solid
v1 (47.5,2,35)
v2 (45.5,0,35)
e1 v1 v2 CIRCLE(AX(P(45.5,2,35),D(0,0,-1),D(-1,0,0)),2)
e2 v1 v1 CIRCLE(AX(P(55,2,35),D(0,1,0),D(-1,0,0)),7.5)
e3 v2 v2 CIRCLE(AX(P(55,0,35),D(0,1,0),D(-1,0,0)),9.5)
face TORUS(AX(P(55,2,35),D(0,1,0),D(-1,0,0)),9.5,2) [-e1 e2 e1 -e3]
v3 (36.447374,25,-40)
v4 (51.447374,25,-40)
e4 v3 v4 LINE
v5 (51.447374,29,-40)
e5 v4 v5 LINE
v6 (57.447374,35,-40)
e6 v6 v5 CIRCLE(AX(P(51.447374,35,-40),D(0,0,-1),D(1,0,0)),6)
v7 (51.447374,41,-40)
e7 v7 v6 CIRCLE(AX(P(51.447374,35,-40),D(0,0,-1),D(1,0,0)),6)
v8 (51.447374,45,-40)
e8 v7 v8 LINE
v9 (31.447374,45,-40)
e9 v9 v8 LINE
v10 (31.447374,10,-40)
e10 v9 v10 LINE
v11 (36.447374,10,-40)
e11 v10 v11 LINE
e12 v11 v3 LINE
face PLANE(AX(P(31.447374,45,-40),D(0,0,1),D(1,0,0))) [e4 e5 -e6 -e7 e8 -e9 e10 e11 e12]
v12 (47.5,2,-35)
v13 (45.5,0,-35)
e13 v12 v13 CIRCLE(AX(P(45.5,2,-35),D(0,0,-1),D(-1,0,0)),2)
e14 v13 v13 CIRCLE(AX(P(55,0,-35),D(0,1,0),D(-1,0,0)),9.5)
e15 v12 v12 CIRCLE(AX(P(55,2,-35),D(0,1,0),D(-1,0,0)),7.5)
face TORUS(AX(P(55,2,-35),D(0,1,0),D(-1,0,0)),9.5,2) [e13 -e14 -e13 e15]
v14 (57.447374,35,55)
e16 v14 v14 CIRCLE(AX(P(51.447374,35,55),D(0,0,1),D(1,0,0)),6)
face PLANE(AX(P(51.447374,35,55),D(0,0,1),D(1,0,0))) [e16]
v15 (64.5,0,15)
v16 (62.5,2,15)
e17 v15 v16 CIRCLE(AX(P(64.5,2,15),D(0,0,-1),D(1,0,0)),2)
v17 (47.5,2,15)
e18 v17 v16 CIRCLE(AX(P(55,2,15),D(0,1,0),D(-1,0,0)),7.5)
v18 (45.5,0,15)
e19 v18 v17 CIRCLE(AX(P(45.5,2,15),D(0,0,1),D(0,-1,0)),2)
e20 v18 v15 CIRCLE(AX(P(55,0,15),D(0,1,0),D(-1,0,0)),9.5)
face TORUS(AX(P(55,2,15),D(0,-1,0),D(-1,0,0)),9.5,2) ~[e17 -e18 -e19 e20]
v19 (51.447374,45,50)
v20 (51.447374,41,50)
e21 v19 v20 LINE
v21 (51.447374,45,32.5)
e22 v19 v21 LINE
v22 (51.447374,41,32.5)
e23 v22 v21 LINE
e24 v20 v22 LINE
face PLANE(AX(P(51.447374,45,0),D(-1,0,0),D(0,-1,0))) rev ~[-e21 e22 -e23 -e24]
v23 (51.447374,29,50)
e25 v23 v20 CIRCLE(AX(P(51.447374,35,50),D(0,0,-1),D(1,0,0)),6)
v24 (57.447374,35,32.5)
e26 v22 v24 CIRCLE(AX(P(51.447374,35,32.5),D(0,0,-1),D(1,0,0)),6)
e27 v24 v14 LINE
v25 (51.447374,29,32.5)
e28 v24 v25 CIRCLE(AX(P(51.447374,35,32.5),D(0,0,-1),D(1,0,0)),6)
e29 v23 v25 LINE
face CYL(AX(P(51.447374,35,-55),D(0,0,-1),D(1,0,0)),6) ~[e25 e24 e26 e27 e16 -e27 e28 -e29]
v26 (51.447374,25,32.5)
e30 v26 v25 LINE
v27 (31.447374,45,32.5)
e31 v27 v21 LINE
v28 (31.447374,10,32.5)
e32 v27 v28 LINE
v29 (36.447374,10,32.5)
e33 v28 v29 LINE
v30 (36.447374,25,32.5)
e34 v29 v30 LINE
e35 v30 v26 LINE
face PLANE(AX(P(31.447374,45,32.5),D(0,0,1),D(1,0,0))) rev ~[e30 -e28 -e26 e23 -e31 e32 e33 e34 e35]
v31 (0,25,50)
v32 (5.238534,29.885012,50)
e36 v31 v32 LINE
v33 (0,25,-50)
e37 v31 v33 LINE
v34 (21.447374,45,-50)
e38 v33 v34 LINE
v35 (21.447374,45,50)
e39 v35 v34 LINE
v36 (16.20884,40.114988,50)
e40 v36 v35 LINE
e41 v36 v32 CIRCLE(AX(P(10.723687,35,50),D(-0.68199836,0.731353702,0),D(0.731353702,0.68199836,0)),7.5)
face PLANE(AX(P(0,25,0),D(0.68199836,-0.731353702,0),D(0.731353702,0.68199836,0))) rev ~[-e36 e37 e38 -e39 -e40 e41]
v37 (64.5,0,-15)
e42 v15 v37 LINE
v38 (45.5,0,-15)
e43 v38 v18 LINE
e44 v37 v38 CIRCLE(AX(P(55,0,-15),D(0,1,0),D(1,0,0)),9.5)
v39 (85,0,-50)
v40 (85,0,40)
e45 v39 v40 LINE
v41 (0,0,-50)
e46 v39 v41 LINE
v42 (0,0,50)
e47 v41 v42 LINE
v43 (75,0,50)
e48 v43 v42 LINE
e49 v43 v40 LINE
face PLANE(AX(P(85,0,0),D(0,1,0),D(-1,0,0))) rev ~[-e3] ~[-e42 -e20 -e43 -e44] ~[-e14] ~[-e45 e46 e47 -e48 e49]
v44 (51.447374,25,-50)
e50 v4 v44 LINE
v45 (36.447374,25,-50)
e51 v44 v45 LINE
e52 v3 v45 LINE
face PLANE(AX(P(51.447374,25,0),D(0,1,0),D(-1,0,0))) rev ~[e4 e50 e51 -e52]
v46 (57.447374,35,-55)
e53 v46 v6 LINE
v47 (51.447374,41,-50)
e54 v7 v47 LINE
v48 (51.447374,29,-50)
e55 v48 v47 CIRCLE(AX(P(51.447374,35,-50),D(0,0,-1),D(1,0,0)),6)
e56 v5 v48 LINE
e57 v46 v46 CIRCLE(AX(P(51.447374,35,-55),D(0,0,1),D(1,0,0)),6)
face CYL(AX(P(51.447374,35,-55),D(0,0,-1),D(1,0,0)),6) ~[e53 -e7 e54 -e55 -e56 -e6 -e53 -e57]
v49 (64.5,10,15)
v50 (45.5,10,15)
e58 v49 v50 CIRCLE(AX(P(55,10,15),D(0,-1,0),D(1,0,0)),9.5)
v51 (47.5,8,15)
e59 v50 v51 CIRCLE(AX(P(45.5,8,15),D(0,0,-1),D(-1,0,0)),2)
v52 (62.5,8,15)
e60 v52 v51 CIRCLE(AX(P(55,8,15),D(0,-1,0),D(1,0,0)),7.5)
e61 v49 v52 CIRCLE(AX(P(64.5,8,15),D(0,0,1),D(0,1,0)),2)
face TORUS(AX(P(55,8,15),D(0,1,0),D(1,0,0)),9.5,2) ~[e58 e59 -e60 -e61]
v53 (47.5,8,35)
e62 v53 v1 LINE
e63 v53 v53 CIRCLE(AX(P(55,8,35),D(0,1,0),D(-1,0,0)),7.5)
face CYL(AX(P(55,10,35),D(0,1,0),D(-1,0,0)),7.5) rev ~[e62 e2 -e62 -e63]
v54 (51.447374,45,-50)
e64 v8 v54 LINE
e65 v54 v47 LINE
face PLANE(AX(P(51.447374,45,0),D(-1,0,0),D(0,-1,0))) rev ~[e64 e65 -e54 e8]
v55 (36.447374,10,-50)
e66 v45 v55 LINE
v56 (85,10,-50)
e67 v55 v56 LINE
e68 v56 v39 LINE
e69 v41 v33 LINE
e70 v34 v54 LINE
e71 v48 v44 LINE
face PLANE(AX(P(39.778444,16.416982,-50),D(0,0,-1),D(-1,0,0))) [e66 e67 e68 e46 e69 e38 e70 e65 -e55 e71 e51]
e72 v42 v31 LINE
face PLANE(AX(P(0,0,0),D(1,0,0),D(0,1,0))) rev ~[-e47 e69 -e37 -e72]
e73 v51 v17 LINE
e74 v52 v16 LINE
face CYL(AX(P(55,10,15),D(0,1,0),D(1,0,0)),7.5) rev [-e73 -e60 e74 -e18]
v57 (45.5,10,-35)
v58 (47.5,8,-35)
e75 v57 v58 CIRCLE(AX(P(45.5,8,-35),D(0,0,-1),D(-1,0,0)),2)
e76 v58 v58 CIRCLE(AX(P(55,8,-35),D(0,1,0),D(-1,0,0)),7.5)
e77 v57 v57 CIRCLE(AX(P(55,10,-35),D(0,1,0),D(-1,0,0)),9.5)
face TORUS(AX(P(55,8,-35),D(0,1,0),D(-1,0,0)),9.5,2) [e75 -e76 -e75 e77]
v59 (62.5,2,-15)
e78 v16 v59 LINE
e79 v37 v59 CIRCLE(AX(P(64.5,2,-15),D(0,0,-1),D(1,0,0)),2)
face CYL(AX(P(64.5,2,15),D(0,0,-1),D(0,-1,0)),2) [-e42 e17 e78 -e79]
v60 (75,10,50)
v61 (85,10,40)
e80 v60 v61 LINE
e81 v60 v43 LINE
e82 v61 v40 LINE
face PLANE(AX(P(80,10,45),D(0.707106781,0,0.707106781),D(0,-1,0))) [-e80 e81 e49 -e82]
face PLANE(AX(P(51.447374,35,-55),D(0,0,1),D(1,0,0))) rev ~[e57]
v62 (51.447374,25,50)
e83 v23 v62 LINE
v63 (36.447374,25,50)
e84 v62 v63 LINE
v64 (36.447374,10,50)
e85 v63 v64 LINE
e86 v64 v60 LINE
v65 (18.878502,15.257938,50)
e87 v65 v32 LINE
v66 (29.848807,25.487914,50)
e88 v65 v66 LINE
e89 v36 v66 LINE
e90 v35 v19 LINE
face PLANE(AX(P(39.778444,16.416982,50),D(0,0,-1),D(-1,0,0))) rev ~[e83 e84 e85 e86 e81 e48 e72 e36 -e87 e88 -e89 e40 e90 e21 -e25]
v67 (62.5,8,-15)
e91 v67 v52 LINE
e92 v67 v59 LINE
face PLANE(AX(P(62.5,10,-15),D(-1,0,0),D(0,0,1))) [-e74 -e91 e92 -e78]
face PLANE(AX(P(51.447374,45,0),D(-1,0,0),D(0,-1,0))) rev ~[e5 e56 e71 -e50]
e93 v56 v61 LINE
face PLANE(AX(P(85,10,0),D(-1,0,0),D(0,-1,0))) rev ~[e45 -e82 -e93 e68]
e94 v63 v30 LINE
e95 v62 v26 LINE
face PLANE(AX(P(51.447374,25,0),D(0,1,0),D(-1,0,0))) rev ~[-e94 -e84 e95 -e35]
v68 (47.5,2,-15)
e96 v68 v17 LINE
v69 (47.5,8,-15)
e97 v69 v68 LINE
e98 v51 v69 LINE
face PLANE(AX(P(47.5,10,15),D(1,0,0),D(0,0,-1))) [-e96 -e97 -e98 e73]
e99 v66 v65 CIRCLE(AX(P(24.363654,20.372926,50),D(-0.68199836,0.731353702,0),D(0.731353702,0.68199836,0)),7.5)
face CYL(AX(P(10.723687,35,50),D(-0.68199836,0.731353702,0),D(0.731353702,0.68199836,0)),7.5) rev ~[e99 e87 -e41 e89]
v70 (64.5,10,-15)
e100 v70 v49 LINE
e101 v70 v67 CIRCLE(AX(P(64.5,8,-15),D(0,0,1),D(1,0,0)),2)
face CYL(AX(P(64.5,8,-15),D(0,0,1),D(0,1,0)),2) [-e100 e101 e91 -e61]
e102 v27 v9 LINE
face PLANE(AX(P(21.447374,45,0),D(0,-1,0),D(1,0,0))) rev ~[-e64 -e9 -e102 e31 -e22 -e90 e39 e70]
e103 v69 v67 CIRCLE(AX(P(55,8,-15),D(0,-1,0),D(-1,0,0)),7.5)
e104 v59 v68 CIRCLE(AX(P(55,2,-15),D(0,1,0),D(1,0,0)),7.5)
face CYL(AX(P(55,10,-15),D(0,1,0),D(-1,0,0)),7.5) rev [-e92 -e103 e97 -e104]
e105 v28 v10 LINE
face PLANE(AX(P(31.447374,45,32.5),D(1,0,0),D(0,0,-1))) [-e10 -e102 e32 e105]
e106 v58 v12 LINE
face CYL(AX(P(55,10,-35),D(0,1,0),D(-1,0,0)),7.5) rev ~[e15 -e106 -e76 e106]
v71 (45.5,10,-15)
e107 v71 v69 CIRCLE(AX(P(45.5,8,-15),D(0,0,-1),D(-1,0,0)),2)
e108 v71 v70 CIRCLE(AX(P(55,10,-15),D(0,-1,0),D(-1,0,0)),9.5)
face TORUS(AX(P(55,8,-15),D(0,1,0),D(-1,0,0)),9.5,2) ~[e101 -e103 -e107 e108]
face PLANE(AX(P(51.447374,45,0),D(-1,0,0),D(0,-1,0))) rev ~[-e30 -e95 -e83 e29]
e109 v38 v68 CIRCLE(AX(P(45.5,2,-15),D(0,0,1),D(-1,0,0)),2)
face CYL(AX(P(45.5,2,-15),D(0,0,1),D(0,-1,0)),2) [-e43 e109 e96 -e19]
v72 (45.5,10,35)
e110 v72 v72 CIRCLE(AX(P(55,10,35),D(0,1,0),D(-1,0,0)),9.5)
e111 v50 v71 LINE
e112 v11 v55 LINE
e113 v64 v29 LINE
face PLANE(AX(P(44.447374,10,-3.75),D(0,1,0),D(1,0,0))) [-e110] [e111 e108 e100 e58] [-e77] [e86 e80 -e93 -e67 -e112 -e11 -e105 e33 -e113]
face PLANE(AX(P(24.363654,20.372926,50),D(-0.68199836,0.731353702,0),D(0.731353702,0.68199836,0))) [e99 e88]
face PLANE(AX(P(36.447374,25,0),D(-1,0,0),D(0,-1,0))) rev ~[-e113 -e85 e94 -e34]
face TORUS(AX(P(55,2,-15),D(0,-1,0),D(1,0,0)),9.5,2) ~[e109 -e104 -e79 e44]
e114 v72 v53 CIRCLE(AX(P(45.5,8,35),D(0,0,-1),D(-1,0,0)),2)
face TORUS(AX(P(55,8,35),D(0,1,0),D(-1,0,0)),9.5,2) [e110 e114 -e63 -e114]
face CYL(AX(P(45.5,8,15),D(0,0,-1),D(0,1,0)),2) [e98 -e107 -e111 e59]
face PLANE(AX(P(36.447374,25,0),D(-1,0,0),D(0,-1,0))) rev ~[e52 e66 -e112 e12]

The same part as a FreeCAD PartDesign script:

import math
import FreeCAD as App
import Part
import Sketcher

V = App.Vector
Q = App.Units.Quantity


def edges_at(feature, points):
    """Names of the edges that pass closest to the given points."""
    edges = feature.Shape.Edges
    near = lambda p: min(range(len(edges)), key=lambda i: edges[i].distToShape(Part.Vertex(*p))[0])
    return sorted({f"Edge{near(p) + 1}" for p in points})


def add_polygon(sketch, points):
    """Adds a closed chain of lines whose ends are joined by coincident constraints."""
    first, n = sketch.GeometryCount, len(points)
    for a, b in zip(points, points[1:] + points[:1]):
        sketch.addGeometry(Part.LineSegment(App.Vector(*a, 0), App.Vector(*b, 0)), False)
    for i in range(n):
        sketch.addConstraint(Sketcher.Constraint("Coincident", first + i, 2, first + (i + 1) % n, 1))

doc = App.newDocument("Part")
body = doc.addObject("PartDesign::Body", "Body")

# Sketch on XY plane
sketch1 = body.newObject("Sketcher::SketchObject", "Sketch")
sketch1.AttachmentSupport = (doc.getObject("XY_Plane"), [""])
sketch1.MapMode = "FlatFace"
add_polygon(sketch1, [(0, 25), (0, 0), (85, 0), (85, 10), (36, 10), (36, 25), (51, 25), (51, 45), (21, 45)])  # lines 0-8
sketch1.addConstraint([
    Sketcher.Constraint("Vertical", 0),
    Sketcher.Constraint("Horizontal", 1),
    Sketcher.Constraint("Vertical", 2),
    Sketcher.Constraint("Horizontal", 3),
    Sketcher.Constraint("Vertical", 4),
    Sketcher.Constraint("Horizontal", 5),
    Sketcher.Constraint("Vertical", 6),
    Sketcher.Constraint("Horizontal", 7),
    Sketcher.Constraint("Coincident", 0, 2, -1, 1),
    Sketcher.Constraint("Horizontal", 5, 2, 8, 2),
    Sketcher.Constraint("Equal", 5, 4),
    Sketcher.Constraint("DistanceX", 1, 1, 1, 2, 85.0),
    Sketcher.Constraint("DistanceX", 5, 1, 5, 2, 15.0),
    Sketcher.Constraint("DistanceX", 7, 2, 7, 1, 30.0),
    Sketcher.Constraint("DistanceY", 0, 2, 0, 1, 25.0),
    Sketcher.Constraint("DistanceY", 6, 1, 6, 2, 20.0),
    Sketcher.Constraint("Angle", 8, Q("-137 deg")),
])
pad1 = body.newObject("PartDesign::Pad", "Pad")
pad1.Profile = sketch1
pad1.Length = 100
pad1.Midplane = True

# Sketch on XY plane
sketch2 = body.newObject("Sketcher::SketchObject", "Sketch001")
sketch2.AttachmentSupport = (doc.getObject("XY_Plane"), [""])
sketch2.MapMode = "FlatFace"
sketch2.addGeometry(Part.Circle(V(51, 35, 0), V(0, 0, 1), 6), False)
sketch2.addConstraint([
    Sketcher.Constraint("Diameter", 0, 12.0),
    Sketcher.Constraint("DistanceY", -1, 1, 0, 3, 35.0),
    Sketcher.Constraint("DistanceX", -1, 1, 0, 3, 51.447374),
])
pad2 = body.newObject("PartDesign::Pad", "Pad001")
pad2.Profile = sketch2
pad2.Type = "TwoLengths"
pad2.Length = 55
pad2.Length2 = 55

# Sketch on XZ plane
sketch3 = body.newObject("Sketcher::SketchObject", "Sketch002")
sketch3.AttachmentSupport = (doc.getObject("XZ_Plane"), [""])
sketch3.MapMode = "FlatFace"
sketch3.AttachmentOffset = App.Placement(V(0, 0, -45), App.Rotation())
add_polygon(sketch3, [(31, -40), (31, 32), (57, 32), (57, -40)])  # lines 0-3
sketch3.addConstraint([
    Sketcher.Constraint("Vertical", 0),
    Sketcher.Constraint("Horizontal", 1),
    Sketcher.Constraint("Vertical", 2),
    Sketcher.Constraint("Horizontal", 3),
    Sketcher.Constraint("DistanceX", 1, 1, 1, 2, 26.0),
    Sketcher.Constraint("DistanceY", 0, 1, 0, 2, 72.5),
    Sketcher.Constraint("DistanceY", 2, 2, -1, 1, 40.0),
    Sketcher.Constraint("DistanceX", -1, 1, 0, 2, 31.447374),
])
pocket1 = body.newObject("PartDesign::Pocket", "Pocket")
pocket1.Profile = sketch3
pocket1.Length = 35
pocket1.Reversed = True

# Sketch on an angled plane
sketch4 = body.newObject("Sketcher::SketchObject", "Sketch003")
sketch4.Placement = App.Placement(V(-12.469551, 13.371956, 0), App.Rotation(V(0.731353702, 0.68199836, 0), V(0, 0, -1), V(-0.68199836, 0.731353702, 0), "ZXY"))
sketch4.addGeometry(Part.Circle(V(32, -50, 0), V(0, 0, 1), 8), False)
sketch4.addConstraint([
    Sketcher.Constraint("Diameter", 0, 15.0),
    Sketcher.Constraint("DistanceY", 0, 3, -1, 1, 50.0),
    Sketcher.Constraint("DistanceX", -1, 1, 0, 3, 31.712751),
])
pocket2 = body.newObject("PartDesign::Pocket", "Pocket001")
pocket2.Profile = sketch4
pocket2.Length = 20

# Sketch on XZ plane
sketch5 = body.newObject("Sketcher::SketchObject", "Sketch004")
sketch5.AttachmentSupport = (doc.getObject("XZ_Plane"), [""])
sketch5.MapMode = "FlatFace"
sketch5.AttachmentOffset = App.Placement(V(0, 0, -10), App.Rotation())
sketch5.addGeometry([
    Part.Circle(V(55, 35, 0), V(0, 0, 1), 8),  # 0
    Part.Circle(V(55, -35, 0), V(0, 0, 1), 8),  # 1
    Part.LineSegment(V(62, 15, 0), V(62, -15, 0)),  # 2
    Part.ArcOfCircle(Part.Circle(V(55, -15, 0), V(0, 0, 1), 8), math.radians(180), math.radians(360)),  # 3
    Part.LineSegment(V(48, -15, 0), V(48, 15, 0)),  # 4
    Part.ArcOfCircle(Part.Circle(V(55, 15, 0), V(0, 0, 1), 8), math.radians(0), math.radians(180)),  # 5
], False)
sketch5.addConstraint([
    Sketcher.Constraint("Tangent", 2, 2, 3, 2),
    Sketcher.Constraint("Tangent", 3, 1, 4, 1),
    Sketcher.Constraint("Tangent", 4, 2, 5, 2),
    Sketcher.Constraint("Tangent", 5, 1, 2, 1),
    Sketcher.Constraint("Vertical", 2),
    Sketcher.Constraint("Vertical", 4),
    Sketcher.Constraint("Equal", 0, 1),
    Sketcher.Constraint("Equal", 1, 3),
    Sketcher.Constraint("Symmetric", 0, 3, 1, 3, -1),
    Sketcher.Constraint("Vertical", 1, 3, 3, 3),
    Sketcher.Constraint("Diameter", 0, 15.0),
    Sketcher.Constraint("DistanceY", 2, 2, 2, 1, 30.0),
    Sketcher.Constraint("DistanceX", -1, 1, 0, 3, 55.0),
    Sketcher.Constraint("DistanceY", -1, 1, 0, 3, 35.0),
    Sketcher.Constraint("DistanceY", 3, 3, -1, 1, 15.0),
])
pocket3 = body.newObject("PartDesign::Pocket", "Pocket002")
pocket3.Profile = sketch5
pocket3.Type = "ThroughAll"
pocket3.Reversed = True
doc.recompute()

fillet = body.newObject("PartDesign::Fillet", "Fillet")
fillet.Base = (pocket3, edges_at(pocket3, [
    (55, 0, -22.5),
    (62.5, 0, 0),
    (55, 0, 22.5),
    (47.5, 0, 0),
    (55, 10, -22.5),
    (47.5, 10, 0),
    (55, 10, 22.5),
    (62.5, 10, 0),
]))
fillet.Radius = 2
doc.recompute()

fillet2 = body.newObject("PartDesign::Fillet", "Fillet001")
fillet2.Base = (fillet, edges_at(fillet, [
    (62.5, 0, -35),
    (62.5, 10, -35),
    (62.5, 0, 35),
    (62.5, 10, 35),
]))
fillet2.Radius = 2
doc.recompute()

chamfer = body.newObject("PartDesign::Chamfer", "Chamfer")
chamfer.Base = (fillet2, edges_at(fillet2, [(85, 5, 50)]))
chamfer.Size = 10

doc.recompute()
